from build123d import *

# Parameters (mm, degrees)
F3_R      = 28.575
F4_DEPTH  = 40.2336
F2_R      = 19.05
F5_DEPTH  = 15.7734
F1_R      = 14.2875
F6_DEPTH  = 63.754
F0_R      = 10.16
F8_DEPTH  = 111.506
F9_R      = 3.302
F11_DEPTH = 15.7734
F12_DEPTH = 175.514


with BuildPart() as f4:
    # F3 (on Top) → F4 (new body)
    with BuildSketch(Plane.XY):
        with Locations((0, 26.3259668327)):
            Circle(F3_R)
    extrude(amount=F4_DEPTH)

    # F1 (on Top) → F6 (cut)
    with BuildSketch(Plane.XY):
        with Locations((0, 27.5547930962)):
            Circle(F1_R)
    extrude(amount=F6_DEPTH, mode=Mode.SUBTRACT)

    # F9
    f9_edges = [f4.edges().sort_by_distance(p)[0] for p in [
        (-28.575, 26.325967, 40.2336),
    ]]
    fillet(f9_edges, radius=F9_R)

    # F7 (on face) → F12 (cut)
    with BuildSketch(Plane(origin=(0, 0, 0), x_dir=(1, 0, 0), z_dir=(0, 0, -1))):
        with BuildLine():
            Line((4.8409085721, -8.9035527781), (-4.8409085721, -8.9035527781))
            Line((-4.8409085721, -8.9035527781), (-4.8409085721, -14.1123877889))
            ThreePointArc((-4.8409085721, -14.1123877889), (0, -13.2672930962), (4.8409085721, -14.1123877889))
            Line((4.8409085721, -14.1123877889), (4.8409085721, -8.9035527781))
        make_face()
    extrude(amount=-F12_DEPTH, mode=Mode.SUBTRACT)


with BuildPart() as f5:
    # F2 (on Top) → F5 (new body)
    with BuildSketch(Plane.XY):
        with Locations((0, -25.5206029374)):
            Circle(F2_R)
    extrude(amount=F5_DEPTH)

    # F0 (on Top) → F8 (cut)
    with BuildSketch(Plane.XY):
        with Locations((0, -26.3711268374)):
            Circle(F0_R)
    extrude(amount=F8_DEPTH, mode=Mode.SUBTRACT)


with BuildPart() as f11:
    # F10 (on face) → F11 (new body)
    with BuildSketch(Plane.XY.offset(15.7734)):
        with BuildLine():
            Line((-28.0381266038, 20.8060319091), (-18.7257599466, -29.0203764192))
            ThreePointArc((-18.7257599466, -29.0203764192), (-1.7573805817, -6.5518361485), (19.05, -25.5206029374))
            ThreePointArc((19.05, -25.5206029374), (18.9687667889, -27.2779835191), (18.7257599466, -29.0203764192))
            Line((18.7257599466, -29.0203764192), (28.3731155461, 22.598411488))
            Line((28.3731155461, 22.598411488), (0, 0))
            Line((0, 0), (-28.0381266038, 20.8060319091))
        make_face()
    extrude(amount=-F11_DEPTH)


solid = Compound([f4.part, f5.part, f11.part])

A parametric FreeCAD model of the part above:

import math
import FreeCAD as App
import Part
import Sketcher
Q = App.Units.Quantity


def edges_at(feature, points):
    """Names of the edges that pass closest to the given points."""
    edges = feature.Shape.Edges
    near = lambda p: min(range(len(edges)), key=lambda i: edges[i].distToShape(Part.Vertex(*p))[0])
    return sorted({f"Edge{near(p) + 1}" for p in points})

doc = App.newDocument("Part")
body = doc.addObject("PartDesign::Body", "Body")

# Sketch on XY plane
sketch1 = body.newObject("Sketcher::SketchObject", "Sketch")
sketch1.AttachmentSupport = (doc.getObject("XY_Plane"), [""])
sketch1.MapMode = "FlatFace"
sketch1.addGeometry(Part.Circle(App.Vector(0, 26, 0), App.Vector(0, 0, 1), 29), False)
sketch1.addConstraint([
    Sketcher.Constraint("PointOnObject", 0, 3, -2),
    Sketcher.Constraint("Diameter", 0, Q("2.25 in")),
    Sketcher.Constraint("DistanceY", -1, 1, 0, 3, 26.325967),
])
pad1 = body.newObject("PartDesign::Pad", "Pad")
pad1.Profile = sketch1
pad1.Length = Q("1.584 in")

# Sketch on XY plane
sketch2 = body.newObject("Sketcher::SketchObject", "Sketch001")
sketch2.AttachmentSupport = (doc.getObject("XY_Plane"), [""])
sketch2.MapMode = "FlatFace"
sketch2.addGeometry(Part.Circle(App.Vector(0, 28, 0), App.Vector(0, 0, 1), 14), False)
sketch2.addConstraint([
    Sketcher.Constraint("PointOnObject", 0, 3, -2),
    Sketcher.Constraint("Diameter", 0, Q("1.125 in")),
    Sketcher.Constraint("DistanceY", -1, 1, 0, 3, 27.554793),
])
pocket1 = body.newObject("PartDesign::Pocket", "Pocket")
pocket1.Profile = sketch2
pocket1.Length = Q("2.51 in")
pocket1.Reversed = True
doc.recompute()

fillet = body.newObject("PartDesign::Fillet", "Fillet")
fillet.Base = (pocket1, edges_at(pocket1, [(-28.575, 26.326, 40.234)]))
fillet.Radius = Q("0.13 in")

# Sketch on XY plane
sketch3 = body.newObject("Sketcher::SketchObject", "Sketch002")
sketch3.AttachmentSupport = (doc.getObject("XY_Plane"), [""])
sketch3.MapMode = "FlatFace"
sketch3.addGeometry([
    Part.LineSegment(App.Vector(5, 9, 0), App.Vector(-5, 9, 0)),
    Part.LineSegment(App.Vector(-5, 9, 0), App.Vector(-5, 14, 0)),
    Part.ArcOfCircle(Part.Circle(App.Vector(0, 28, 0), App.Vector(0, 0, 1), 14), math.radians(-110), math.radians(-70)),
    Part.LineSegment(App.Vector(5, 14, 0), App.Vector(5, 9, 0)),
], False)
sketch3.addConstraint([
    Sketcher.Constraint("Coincident", 0, 2, 1, 1),
    Sketcher.Constraint("Coincident", 1, 2, 2, 1),
    Sketcher.Constraint("Coincident", 2, 2, 3, 1),
    Sketcher.Constraint("Coincident", 3, 2, 0, 1),
    Sketcher.Constraint("Horizontal", 0),
    Sketcher.Constraint("Vertical", 1),
    Sketcher.Constraint("Vertical", 3),
    Sketcher.Constraint("Symmetric", 1, 2, 2, 2, -2),
    Sketcher.Constraint("Radius", 2, Q("0.5625 in")),
    Sketcher.Constraint("DistanceX", 0, 2, 0, 1, 9.681817),
    Sketcher.Constraint("DistanceY", 1, 1, 1, 2, 5.208835),
    Sketcher.Constraint("DistanceY", -1, 1, 2, 3, 27.554793),
])
pocket2 = body.newObject("PartDesign::Pocket", "Pocket001")
pocket2.Profile = sketch3
pocket2.Length = Q("6.91 in")
pocket2.Reversed = True
body2 = doc.addObject("PartDesign::Body", "Body001")

# Sketch on XY plane
sketch4 = body2.newObject("Sketcher::SketchObject", "Sketch003")
sketch4.AttachmentSupport = (doc.getObject("XY_Plane001"), [""])
sketch4.MapMode = "FlatFace"
sketch4.addGeometry(Part.Circle(App.Vector(0, -26, 0), App.Vector(0, 0, 1), 19), False)
sketch4.addConstraint([
    Sketcher.Constraint("PointOnObject", 0, 3, -2),
    Sketcher.Constraint("Diameter", 0, Q("1.5 in")),
    Sketcher.Constraint("DistanceY", 0, 3, -1, 1, 25.520603),
])
pad2 = body2.newObject("PartDesign::Pad", "Pad001")
pad2.Profile = sketch4
pad2.Length = Q("0.621 in")

# Sketch on XY plane
sketch5 = body2.newObject("Sketcher::SketchObject", "Sketch004")
sketch5.AttachmentSupport = (doc.getObject("XY_Plane001"), [""])
sketch5.MapMode = "FlatFace"
sketch5.addGeometry(Part.Circle(App.Vector(0, -26, 0), App.Vector(0, 0, 1), 10), False)
sketch5.addConstraint([
    Sketcher.Constraint("PointOnObject", 0, 3, -2),
    Sketcher.Constraint("Diameter", 0, Q("0.8 in")),
    Sketcher.Constraint("DistanceY", 0, 3, -1, 1, 26.371127),
])
pocket3 = body2.newObject("PartDesign::Pocket", "Pocket002")
pocket3.Profile = sketch5
pocket3.Length = Q("4.39 in")
pocket3.Reversed = True
body3 = doc.addObject("PartDesign::Body", "Body002")

# Sketch on XY plane
sketch6 = body3.newObject("Sketcher::SketchObject", "Sketch005")
sketch6.AttachmentSupport = (doc.getObject("XY_Plane002"), [""])
sketch6.MapMode = "FlatFace"
sketch6.AttachmentOffset = App.Placement(App.Vector(0, 0, 0.621 * 25.4), App.Rotation())
sketch6.addGeometry([
    Part.LineSegment(App.Vector(-28, 20.8, 0), App.Vector(-18.7, -29, 0)),  # 0
    Part.ArcOfCircle(Part.Circle(App.Vector(0, -25.5, 0), App.Vector(0, 0, 1), 19.1), math.radians(0), math.radians(191)),  # 1
    Part.ArcOfCircle(Part.Circle(App.Vector(0, -25.5, 0), App.Vector(0, 0, 1), 19.1), math.radians(-10.59), math.radians(0)),  # 2
    Part.LineSegment(App.Vector(18.7, -29, 0), App.Vector(28.4, 22.6, 0)),  # 3
    Part.LineSegment(App.Vector(28.4, 22.6, 0), App.Vector(0, 0, 0)),  # 4
    Part.LineSegment(App.Vector(0, 0, 0), App.Vector(-28, 20.8, 0)),  # 5
], False)
sketch6.addConstraint([
    Sketcher.Constraint("Tangent", 0, 2, 1, 2),
    Sketcher.Constraint("Tangent", 1, 1, 2, 2),
    Sketcher.Constraint("Tangent", 2, 1, 3, 1),
    Sketcher.Constraint("Coincident", 3, 2, 4, 1),
    Sketcher.Constraint("Coincident", 4, 2, 5, 1),
    Sketcher.Constraint("Coincident", 5, 2, 0, 1),
    Sketcher.Constraint("Coincident", 4, 2, -1, 1),
    Sketcher.Constraint("Equal", 1, 2),
    Sketcher.Constraint("Symmetric", 0, 2, 2, 1, -2),
    Sketcher.Constraint("Horizontal", 2, 3, 1, 1),
    Sketcher.Constraint("Radius", 1, Q("0.75 in")),
    Sketcher.Constraint("Distance", 0, 50.689162),
    Sketcher.Constraint("Distance", 4, 36.272881),
    Sketcher.Constraint("DistanceX", 0, 2, -1, 1, 18.72576),
    Sketcher.Constraint("DistanceY", -1, 1, 3, 2, 22.598411),
])
pad3 = body3.newObject("PartDesign::Pad", "Pad002")
pad3.Profile = sketch6
pad3.Length = Q("0.621 in")
pad3.Reversed = True

doc.recompute()
